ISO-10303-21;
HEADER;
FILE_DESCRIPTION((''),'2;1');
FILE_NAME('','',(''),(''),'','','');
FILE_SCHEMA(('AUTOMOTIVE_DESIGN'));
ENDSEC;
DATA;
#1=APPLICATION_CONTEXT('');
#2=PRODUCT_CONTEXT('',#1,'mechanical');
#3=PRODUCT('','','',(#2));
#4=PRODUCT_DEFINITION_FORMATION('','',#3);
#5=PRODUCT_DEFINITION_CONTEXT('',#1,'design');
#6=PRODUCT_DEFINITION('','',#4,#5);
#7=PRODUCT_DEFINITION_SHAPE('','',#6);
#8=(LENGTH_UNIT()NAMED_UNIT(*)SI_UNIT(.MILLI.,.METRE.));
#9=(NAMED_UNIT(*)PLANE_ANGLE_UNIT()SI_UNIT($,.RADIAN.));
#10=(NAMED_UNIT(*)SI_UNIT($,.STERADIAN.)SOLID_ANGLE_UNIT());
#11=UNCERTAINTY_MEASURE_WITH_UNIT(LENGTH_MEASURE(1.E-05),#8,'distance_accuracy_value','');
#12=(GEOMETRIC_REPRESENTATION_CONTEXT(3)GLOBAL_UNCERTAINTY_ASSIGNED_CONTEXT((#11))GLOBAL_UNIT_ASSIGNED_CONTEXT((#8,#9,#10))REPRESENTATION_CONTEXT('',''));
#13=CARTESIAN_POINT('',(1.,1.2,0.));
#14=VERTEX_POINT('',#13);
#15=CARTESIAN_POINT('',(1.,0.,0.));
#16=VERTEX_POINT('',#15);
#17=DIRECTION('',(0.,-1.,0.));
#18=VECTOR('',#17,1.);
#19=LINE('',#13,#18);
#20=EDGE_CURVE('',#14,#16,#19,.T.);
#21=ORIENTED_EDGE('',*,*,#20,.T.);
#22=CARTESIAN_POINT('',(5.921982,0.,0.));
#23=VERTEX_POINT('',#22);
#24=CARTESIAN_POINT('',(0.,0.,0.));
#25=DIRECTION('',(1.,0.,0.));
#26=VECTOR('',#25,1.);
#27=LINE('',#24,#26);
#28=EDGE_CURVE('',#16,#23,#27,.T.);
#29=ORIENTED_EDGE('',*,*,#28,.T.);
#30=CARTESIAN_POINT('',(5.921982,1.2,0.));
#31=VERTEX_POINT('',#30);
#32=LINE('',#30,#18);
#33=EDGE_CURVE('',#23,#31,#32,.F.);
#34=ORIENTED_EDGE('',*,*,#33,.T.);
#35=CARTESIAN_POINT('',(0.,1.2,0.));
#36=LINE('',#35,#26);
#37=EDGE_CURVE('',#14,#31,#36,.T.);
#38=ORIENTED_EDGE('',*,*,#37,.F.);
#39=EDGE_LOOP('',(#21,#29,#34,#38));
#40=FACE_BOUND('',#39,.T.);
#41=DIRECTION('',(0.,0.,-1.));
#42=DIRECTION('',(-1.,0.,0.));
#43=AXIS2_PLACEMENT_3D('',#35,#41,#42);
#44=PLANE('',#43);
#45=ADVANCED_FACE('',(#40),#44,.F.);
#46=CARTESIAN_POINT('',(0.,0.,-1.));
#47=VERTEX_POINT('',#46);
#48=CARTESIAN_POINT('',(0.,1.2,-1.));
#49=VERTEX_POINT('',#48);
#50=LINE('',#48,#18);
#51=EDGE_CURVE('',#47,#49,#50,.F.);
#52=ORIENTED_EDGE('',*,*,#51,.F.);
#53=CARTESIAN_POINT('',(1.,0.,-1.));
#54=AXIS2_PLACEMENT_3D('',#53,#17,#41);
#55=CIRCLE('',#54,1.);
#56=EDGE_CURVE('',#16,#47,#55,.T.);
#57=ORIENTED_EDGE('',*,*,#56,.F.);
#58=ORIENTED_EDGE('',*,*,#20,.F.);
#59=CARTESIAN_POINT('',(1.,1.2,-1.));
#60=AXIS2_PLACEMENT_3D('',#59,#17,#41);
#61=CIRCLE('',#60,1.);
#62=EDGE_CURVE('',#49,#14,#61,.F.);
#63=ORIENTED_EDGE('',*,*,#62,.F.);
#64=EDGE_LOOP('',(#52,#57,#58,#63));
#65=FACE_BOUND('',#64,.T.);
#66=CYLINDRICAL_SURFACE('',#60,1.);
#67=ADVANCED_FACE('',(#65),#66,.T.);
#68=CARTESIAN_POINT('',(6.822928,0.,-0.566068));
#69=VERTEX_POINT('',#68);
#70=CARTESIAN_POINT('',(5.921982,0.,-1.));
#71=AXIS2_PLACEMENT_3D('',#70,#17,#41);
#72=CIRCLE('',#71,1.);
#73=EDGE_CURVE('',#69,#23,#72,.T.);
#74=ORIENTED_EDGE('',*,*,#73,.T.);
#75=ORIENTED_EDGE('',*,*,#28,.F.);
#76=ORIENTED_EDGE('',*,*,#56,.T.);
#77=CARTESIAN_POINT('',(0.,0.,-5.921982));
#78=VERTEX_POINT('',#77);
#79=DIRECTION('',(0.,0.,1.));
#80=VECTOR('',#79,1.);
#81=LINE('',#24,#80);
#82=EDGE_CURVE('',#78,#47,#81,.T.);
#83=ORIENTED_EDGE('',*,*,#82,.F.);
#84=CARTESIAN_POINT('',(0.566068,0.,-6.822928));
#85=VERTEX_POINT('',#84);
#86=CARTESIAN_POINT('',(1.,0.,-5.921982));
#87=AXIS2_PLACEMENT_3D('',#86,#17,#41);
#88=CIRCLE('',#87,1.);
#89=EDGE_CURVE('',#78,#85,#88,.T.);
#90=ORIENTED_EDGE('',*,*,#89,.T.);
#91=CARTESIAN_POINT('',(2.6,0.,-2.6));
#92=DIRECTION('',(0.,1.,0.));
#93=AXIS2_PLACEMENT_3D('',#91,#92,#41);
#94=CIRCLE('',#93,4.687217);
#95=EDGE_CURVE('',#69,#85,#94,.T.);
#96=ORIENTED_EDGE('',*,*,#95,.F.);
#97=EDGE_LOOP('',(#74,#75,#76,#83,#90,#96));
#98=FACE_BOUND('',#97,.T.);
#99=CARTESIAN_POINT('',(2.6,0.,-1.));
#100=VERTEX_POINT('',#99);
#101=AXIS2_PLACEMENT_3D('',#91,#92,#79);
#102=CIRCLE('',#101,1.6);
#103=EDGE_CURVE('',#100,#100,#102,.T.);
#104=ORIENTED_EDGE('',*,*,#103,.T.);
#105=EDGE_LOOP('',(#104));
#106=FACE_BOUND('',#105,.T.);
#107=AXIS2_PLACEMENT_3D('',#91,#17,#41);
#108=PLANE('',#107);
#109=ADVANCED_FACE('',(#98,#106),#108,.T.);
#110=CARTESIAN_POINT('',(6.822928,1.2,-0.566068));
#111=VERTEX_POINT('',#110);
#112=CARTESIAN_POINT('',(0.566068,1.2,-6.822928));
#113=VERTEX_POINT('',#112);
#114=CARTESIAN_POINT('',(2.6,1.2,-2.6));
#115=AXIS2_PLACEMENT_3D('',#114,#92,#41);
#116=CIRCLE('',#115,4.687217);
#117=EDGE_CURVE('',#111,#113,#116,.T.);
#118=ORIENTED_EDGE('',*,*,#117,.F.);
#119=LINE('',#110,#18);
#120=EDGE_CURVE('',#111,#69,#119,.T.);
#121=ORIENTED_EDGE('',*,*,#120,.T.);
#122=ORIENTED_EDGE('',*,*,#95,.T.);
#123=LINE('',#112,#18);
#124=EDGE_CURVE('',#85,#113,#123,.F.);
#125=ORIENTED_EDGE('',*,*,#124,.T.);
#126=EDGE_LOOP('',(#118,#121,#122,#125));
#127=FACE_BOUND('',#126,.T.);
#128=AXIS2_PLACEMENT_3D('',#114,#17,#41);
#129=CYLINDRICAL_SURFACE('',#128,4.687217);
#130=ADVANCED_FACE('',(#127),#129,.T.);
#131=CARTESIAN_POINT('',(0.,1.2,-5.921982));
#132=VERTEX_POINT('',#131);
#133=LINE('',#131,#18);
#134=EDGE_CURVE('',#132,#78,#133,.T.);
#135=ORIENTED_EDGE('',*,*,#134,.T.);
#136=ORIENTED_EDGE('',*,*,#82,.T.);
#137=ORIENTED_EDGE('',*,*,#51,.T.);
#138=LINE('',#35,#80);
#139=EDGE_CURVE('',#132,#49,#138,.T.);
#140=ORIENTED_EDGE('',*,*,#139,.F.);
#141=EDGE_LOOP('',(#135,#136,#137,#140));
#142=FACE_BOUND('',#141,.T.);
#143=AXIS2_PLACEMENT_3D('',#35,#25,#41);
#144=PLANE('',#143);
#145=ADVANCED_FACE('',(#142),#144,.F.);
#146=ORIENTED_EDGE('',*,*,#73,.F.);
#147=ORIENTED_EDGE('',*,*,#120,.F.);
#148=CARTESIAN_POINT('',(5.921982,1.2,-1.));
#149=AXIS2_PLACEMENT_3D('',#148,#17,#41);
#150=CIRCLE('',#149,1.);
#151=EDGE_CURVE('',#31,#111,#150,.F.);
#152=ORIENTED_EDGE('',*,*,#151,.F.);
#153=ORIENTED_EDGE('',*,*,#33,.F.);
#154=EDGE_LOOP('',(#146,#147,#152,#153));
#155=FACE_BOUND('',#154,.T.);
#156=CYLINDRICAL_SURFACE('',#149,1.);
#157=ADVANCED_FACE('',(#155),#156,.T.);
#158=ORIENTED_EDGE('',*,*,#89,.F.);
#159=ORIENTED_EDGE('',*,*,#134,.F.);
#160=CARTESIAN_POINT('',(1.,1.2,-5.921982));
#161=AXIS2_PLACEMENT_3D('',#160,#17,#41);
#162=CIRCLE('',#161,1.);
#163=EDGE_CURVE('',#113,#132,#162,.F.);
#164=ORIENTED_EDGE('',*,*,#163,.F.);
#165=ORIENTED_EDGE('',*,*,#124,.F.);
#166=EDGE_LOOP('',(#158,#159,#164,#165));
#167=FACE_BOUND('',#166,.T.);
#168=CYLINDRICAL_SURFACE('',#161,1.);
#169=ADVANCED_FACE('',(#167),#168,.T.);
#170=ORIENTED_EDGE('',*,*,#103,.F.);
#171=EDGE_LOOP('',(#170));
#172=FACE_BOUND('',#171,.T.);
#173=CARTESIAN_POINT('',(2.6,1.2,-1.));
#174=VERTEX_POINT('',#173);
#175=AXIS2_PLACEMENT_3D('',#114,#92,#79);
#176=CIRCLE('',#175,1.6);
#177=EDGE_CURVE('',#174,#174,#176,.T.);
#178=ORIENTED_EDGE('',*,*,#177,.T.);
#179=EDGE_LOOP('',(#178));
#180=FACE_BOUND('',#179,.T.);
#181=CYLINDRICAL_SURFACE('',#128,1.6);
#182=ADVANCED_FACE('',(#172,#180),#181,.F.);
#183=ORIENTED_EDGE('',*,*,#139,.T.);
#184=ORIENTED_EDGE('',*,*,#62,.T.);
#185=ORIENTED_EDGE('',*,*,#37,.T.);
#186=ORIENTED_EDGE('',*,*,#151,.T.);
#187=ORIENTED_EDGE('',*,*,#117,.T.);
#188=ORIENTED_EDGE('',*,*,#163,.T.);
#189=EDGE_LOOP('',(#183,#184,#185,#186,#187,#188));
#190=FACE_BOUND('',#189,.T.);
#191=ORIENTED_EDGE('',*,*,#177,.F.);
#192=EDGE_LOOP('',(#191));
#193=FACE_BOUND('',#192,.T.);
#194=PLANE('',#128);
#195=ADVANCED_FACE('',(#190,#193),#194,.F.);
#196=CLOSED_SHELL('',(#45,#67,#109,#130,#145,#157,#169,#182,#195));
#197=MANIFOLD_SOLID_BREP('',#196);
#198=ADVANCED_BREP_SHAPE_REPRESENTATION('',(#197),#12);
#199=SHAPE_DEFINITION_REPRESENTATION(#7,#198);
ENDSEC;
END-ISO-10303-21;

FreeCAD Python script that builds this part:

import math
import FreeCAD as App
import Part
import Sketcher

V = App.Vector
Q = App.Units.Quantity


def edges_at(feature, points):
    """Names of the edges that pass closest to the given points."""
    edges = feature.Shape.Edges
    near = lambda p: min(range(len(edges)), key=lambda i: edges[i].distToShape(Part.Vertex(*p))[0])
    return sorted({f"Edge{near(p) + 1}" for p in points})

doc = App.newDocument("Part")
body = doc.addObject("PartDesign::Body", "Body")

sketch1 = body.newObject("Sketcher::SketchObject", "Sketch")
sketch1.AttachmentSupport = (doc.getObject("XZ_Plane"), [""])
sketch1.MapMode = "FlatFace"
sketch1.addGeometry([
    Part.LineSegment(V(0, 0, 0), V(6.5, 0, 0)),
    Part.ArcOfCircle(Part.Circle(V(2.6, -2.6, 0), V(0, 0, 1), 4.7), math.radians(-124), math.radians(34)),
    Part.LineSegment(V(0, -6.5, 0), V(0, 0, 0)),
    Part.Circle(V(2.6, -2.6, 0), V(0, 0, 1), 1.6),
], False)
sketch1.addConstraint([
    Sketcher.Constraint("Coincident", 0, 2, 1, 2),
    Sketcher.Constraint("Coincident", 1, 1, 2, 1),
    Sketcher.Constraint("Coincident", 2, 2, 0, 1),
    Sketcher.Constraint("Horizontal", 0),
    Sketcher.Constraint("Vertical", 2),
    Sketcher.Constraint("Coincident", 2, 2, -1, 1),
    Sketcher.Constraint("Coincident", 3, 3, 1, 3),
    Sketcher.Constraint("Equal", 0, 2),
    Sketcher.Constraint("Diameter", 3, Q("3.2 mm")),
    Sketcher.Constraint("DistanceX", 0, 1, 0, 2, Q("6.5 mm")),
    Sketcher.Constraint("DistanceX", -1, 1, 1, 3, Q("2.6 mm")),
])
pad1 = body.newObject("PartDesign::Pad", "Pad")
pad1.Profile = sketch1
pad1.Length = 1.2
pad1.Reversed = True
doc.recompute()

fillet = body.newObject("PartDesign::Fillet", "Fillet")
fillet.Base = (pad1, edges_at(pad1, [(0, 0.6, -6.5), (6.5, 0.6, 0), (0, 0.6, 0)]))
fillet.Radius = 1

doc.recompute()
